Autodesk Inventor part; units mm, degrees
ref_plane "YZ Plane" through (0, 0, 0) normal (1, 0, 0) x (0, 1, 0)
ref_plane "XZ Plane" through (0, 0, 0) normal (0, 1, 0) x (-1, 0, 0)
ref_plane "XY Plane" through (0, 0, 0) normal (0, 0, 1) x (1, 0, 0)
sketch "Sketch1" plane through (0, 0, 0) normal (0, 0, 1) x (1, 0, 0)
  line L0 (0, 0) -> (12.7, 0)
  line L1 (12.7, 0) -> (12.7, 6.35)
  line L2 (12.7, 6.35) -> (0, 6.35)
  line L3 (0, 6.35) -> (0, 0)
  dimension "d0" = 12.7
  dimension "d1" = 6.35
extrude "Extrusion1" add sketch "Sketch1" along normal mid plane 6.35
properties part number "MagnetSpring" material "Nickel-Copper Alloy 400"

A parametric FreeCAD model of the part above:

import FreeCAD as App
import Part
import Sketcher
Q = App.Units.Quantity


def add_polygon(sketch, points):
    """Adds a closed chain of lines whose ends are joined by coincident constraints."""
    first, n = sketch.GeometryCount, len(points)
    for a, b in zip(points, points[1:] + points[:1]):
        sketch.addGeometry(Part.LineSegment(App.Vector(*a, 0), App.Vector(*b, 0)), False)
    for i in range(n):
        sketch.addConstraint(Sketcher.Constraint("Coincident", first + i, 2, first + (i + 1) % n, 1))

doc = App.newDocument("Part")
params = doc.addObject("Spreadsheet::Sheet", "Params")
for row, (alias, value) in enumerate([
    ("sketch1_width", "0.5 in"),
    ("sketch1_height", "0.25 in"),
    ("pad1_length", "0.25 in"),
], start=1):
    params.set(f"A{row}", alias)
    params.set(f"B{row}", "=" + value)
    params.setAlias(f"B{row}", alias)

body = doc.addObject("PartDesign::Body", "Body")

# Sketch on XY plane
sketch1 = doc.addObject("Sketcher::SketchObject", "Sketch")
body.addObject(sketch1)
sketch1.AttachmentSupport = (doc.XY_Plane, [""])
sketch1.MapMode = "FlatFace"
add_polygon(sketch1, [(0, 6.35), (0, 0), (12.7, 0), (12.7, 6.35)])  # lines 0-3
sketch1.addConstraint([
    Sketcher.Constraint("Vertical", 0),
    Sketcher.Constraint("Horizontal", 1),
    Sketcher.Constraint("Vertical", 2),
    Sketcher.Constraint("Horizontal", 3),
    Sketcher.Constraint("Coincident", 0, 2, -1, 1),
    Sketcher.Constraint("DistanceX", 1, 1, 1, 2, Q("0.5 in")),
    Sketcher.Constraint("DistanceY", 0, 2, 0, 1, Q("0.25 in")),
])
sketch1.setExpression("Constraints[9]", "Params.sketch1_width")
sketch1.setExpression("Constraints[10]", "Params.sketch1_height")
pad1 = doc.addObject("PartDesign::Pad", "Pad")
body.addObject(pad1)
pad1.Profile = sketch1
pad1.setExpression("Length", "Params.pad1_length")
pad1.Midplane = True

doc.recompute()
